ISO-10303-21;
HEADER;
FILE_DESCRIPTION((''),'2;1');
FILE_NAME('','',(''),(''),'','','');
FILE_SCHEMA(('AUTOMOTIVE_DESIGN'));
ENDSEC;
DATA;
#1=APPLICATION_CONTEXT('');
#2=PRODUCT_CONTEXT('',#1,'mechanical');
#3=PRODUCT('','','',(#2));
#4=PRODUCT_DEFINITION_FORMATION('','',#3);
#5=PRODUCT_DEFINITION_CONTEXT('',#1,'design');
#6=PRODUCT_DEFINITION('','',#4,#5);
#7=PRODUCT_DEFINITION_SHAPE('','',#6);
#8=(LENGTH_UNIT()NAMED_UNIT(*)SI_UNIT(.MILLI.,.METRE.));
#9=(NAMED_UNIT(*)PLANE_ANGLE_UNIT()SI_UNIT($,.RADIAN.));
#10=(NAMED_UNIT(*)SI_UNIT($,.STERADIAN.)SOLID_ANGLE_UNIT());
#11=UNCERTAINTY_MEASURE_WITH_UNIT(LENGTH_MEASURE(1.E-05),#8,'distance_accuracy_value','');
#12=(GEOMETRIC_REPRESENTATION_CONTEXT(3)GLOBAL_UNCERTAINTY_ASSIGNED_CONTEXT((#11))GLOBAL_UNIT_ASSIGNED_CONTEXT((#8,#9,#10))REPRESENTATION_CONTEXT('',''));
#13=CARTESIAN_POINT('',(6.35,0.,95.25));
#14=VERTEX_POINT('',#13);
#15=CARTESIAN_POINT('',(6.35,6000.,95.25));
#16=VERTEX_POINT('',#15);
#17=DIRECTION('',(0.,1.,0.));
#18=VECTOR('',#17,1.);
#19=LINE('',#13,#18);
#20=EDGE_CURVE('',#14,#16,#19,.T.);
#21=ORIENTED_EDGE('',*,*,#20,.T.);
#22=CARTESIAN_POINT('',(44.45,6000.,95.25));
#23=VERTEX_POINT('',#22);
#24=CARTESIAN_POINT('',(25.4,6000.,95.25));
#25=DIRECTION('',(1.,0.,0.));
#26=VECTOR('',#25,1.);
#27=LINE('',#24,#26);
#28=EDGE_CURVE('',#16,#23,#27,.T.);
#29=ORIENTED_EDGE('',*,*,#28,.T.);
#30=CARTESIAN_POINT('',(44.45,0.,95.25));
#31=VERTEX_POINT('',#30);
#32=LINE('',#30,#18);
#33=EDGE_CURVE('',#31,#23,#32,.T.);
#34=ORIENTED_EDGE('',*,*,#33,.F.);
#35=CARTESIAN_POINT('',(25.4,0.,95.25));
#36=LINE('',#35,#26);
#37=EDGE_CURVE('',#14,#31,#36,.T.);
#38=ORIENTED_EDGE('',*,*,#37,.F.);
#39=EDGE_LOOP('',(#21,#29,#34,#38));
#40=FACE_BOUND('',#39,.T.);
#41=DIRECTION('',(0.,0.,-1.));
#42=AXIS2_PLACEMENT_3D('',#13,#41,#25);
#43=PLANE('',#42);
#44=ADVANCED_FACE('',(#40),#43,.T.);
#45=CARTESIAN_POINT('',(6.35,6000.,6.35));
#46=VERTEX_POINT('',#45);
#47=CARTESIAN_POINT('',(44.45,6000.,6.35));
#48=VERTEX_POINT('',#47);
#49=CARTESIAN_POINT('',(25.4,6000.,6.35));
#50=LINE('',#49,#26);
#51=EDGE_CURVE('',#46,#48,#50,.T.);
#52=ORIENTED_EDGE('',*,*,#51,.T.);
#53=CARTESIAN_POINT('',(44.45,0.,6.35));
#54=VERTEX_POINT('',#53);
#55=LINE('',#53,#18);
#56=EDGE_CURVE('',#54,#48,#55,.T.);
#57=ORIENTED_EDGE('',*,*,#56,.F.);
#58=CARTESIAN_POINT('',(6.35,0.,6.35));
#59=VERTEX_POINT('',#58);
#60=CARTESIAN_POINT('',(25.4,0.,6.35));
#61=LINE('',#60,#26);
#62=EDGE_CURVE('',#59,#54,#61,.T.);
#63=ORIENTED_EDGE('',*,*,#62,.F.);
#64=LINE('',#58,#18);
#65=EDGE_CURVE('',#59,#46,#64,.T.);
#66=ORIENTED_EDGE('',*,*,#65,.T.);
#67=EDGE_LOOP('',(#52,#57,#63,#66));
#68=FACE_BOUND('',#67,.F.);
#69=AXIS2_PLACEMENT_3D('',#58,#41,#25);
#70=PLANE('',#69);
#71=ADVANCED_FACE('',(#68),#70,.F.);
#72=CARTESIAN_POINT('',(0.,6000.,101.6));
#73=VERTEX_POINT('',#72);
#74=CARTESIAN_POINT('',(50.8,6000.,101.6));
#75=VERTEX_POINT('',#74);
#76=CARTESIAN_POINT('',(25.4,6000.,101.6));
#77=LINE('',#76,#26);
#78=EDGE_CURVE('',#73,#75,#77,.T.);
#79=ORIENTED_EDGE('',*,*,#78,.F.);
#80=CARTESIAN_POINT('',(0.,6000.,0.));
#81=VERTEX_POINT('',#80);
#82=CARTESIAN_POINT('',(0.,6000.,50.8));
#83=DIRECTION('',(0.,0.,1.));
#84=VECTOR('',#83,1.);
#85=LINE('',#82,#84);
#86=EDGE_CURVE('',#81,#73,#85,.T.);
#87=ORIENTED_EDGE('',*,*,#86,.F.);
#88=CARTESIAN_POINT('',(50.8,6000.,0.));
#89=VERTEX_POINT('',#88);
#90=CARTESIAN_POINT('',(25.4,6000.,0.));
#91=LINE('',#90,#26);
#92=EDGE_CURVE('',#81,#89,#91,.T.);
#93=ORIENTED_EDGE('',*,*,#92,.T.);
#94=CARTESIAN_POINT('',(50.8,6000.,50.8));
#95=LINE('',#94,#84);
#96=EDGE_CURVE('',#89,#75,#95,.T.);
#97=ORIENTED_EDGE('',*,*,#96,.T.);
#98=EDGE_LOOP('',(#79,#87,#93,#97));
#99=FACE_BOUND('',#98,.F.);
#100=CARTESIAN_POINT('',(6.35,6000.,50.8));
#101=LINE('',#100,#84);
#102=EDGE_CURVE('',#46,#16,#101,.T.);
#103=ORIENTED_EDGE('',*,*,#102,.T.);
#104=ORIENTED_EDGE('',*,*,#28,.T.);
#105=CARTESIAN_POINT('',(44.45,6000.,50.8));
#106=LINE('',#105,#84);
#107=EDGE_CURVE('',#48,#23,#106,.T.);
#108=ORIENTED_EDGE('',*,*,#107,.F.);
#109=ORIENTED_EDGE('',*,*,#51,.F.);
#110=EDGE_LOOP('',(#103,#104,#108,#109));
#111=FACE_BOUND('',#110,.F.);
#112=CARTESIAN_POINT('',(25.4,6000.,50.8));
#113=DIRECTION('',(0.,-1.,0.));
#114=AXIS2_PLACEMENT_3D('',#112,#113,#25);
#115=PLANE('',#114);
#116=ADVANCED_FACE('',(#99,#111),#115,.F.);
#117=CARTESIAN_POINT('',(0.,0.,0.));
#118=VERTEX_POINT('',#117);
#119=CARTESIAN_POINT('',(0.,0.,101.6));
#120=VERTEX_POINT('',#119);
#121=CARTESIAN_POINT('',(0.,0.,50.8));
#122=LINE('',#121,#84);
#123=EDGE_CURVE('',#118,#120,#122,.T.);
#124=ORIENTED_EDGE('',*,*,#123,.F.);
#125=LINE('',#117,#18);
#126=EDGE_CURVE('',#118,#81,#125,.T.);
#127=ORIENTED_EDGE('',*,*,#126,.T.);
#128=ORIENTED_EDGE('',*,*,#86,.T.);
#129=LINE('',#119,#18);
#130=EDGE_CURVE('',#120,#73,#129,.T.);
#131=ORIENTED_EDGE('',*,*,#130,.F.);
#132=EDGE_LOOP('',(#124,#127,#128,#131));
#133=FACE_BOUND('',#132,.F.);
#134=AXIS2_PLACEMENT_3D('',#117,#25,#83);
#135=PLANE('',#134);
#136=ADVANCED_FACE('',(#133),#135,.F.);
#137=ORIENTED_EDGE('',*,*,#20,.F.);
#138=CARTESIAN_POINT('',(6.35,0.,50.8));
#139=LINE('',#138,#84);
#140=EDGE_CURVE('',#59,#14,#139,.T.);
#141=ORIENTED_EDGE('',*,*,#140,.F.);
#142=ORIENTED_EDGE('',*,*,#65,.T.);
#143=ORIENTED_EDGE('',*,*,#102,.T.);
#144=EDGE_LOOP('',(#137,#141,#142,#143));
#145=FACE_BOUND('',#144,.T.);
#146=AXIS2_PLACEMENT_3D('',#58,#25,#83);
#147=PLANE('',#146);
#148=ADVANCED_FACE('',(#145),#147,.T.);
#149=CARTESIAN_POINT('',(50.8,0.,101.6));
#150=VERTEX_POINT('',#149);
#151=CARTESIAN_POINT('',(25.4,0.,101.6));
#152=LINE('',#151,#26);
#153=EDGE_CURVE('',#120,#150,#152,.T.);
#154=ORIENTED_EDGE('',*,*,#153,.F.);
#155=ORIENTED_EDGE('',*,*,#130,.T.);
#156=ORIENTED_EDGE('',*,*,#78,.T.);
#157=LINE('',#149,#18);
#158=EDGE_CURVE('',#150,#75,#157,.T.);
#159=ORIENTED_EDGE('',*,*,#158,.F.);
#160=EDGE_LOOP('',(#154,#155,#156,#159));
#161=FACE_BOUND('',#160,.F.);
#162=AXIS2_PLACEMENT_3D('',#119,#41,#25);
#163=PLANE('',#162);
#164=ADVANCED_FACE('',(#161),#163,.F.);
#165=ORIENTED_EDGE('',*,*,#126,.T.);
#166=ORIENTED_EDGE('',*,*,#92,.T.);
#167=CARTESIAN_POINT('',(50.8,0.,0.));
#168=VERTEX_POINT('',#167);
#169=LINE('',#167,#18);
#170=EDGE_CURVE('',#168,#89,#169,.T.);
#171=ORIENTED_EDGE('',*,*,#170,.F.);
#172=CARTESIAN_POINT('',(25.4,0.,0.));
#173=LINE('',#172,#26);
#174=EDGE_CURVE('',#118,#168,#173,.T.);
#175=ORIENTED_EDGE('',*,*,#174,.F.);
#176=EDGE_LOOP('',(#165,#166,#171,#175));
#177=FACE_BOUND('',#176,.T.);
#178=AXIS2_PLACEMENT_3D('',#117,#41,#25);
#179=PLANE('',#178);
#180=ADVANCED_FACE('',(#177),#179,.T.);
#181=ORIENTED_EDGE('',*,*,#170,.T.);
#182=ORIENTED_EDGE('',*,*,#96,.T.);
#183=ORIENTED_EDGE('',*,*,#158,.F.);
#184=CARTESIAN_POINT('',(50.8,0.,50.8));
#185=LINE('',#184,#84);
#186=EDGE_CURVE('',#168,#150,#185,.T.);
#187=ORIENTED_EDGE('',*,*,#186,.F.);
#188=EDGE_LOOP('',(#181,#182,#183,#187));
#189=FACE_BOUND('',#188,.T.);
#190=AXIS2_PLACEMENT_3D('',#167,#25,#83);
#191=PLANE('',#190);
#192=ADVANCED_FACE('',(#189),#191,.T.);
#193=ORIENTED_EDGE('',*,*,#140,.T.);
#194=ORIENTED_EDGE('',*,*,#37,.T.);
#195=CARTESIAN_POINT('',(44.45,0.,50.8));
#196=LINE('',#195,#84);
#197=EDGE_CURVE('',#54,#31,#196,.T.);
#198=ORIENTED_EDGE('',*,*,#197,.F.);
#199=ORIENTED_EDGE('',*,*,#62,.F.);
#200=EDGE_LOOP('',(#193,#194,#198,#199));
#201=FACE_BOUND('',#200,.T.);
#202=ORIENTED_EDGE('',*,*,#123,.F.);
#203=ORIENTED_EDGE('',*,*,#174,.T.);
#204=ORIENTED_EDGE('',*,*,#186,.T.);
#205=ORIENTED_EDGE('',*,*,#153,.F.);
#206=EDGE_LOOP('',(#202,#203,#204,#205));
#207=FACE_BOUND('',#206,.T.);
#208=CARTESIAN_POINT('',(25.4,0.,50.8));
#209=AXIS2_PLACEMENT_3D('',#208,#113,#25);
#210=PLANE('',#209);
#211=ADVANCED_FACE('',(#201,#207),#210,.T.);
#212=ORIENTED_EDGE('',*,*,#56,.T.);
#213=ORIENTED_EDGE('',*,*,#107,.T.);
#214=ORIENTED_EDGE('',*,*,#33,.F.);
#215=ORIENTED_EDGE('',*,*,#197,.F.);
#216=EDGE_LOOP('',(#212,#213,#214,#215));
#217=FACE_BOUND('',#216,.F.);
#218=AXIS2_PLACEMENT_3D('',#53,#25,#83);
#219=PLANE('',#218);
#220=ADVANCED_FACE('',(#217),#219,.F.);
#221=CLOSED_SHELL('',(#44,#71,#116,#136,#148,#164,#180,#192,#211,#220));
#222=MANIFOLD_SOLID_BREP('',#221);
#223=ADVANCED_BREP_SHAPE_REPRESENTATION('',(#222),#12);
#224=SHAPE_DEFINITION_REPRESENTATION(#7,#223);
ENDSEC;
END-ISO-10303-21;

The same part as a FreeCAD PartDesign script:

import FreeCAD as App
import Part
import Sketcher
from FreeCAD import Vector
Q = App.Units.Quantity


def add_polygon(sketch, points):
    """Adds a closed chain of lines whose ends are joined by coincident constraints."""
    first, n = sketch.GeometryCount, len(points)
    for a, b in zip(points, points[1:] + points[:1]):
        sketch.addGeometry(Part.LineSegment(App.Vector(*a, 0), App.Vector(*b, 0)), False)
    for i in range(n):
        sketch.addConstraint(Sketcher.Constraint("Coincident", first + i, 2, first + (i + 1) % n, 1))

doc = App.newDocument("Part")
body = doc.addObject("PartDesign::Body", "Body")

# Sketch on XZ plane
sketch1 = body.newObject("Sketcher::SketchObject", "Sketch")
sketch1.AttachmentSupport = (doc.getObject("XZ_Plane"), [""])
sketch1.MapMode = "FlatFace"
add_polygon(sketch1, [(0, 101.6), (0, 0), (50.8, 0), (50.8, 101.6)])  # lines 0-3
add_polygon(sketch1, [(44.45, 6.35), (6.35, 6.35), (6.35, 95.25), (44.45, 95.25)])  # lines 4-7
sketch1.addConstraint([
    Sketcher.Constraint("Vertical", 0),
    Sketcher.Constraint("Horizontal", 1),
    Sketcher.Constraint("Vertical", 2),
    Sketcher.Constraint("Horizontal", 3),
    Sketcher.Constraint("Horizontal", 4),
    Sketcher.Constraint("Vertical", 5),
    Sketcher.Constraint("Horizontal", 6),
    Sketcher.Constraint("Vertical", 7),
    Sketcher.Constraint("Coincident", 0, 2, -1, 1),
    Sketcher.Constraint("DistanceX", 1, 1, 1, 2, Q("2 in")),
    Sketcher.Constraint("DistanceY", 0, 2, 0, 1, Q("4 in")),
    Sketcher.Constraint("DistanceX", 4, 2, 4, 1, Q("1.5 in")),
    Sketcher.Constraint("DistanceY", 5, 1, 5, 2, Q("3.5 in")),
    Sketcher.Constraint("DistanceX", -1, 1, 4, 2, Q("0.25 in")),
    Sketcher.Constraint("DistanceY", -1, 1, 4, 2, Q("0.25 in")),
])
pad1 = body.newObject("PartDesign::Pad", "Pad")
pad1.Profile = sketch1
pad1.Length = 6000
pad1.Reversed = True

doc.recompute()
